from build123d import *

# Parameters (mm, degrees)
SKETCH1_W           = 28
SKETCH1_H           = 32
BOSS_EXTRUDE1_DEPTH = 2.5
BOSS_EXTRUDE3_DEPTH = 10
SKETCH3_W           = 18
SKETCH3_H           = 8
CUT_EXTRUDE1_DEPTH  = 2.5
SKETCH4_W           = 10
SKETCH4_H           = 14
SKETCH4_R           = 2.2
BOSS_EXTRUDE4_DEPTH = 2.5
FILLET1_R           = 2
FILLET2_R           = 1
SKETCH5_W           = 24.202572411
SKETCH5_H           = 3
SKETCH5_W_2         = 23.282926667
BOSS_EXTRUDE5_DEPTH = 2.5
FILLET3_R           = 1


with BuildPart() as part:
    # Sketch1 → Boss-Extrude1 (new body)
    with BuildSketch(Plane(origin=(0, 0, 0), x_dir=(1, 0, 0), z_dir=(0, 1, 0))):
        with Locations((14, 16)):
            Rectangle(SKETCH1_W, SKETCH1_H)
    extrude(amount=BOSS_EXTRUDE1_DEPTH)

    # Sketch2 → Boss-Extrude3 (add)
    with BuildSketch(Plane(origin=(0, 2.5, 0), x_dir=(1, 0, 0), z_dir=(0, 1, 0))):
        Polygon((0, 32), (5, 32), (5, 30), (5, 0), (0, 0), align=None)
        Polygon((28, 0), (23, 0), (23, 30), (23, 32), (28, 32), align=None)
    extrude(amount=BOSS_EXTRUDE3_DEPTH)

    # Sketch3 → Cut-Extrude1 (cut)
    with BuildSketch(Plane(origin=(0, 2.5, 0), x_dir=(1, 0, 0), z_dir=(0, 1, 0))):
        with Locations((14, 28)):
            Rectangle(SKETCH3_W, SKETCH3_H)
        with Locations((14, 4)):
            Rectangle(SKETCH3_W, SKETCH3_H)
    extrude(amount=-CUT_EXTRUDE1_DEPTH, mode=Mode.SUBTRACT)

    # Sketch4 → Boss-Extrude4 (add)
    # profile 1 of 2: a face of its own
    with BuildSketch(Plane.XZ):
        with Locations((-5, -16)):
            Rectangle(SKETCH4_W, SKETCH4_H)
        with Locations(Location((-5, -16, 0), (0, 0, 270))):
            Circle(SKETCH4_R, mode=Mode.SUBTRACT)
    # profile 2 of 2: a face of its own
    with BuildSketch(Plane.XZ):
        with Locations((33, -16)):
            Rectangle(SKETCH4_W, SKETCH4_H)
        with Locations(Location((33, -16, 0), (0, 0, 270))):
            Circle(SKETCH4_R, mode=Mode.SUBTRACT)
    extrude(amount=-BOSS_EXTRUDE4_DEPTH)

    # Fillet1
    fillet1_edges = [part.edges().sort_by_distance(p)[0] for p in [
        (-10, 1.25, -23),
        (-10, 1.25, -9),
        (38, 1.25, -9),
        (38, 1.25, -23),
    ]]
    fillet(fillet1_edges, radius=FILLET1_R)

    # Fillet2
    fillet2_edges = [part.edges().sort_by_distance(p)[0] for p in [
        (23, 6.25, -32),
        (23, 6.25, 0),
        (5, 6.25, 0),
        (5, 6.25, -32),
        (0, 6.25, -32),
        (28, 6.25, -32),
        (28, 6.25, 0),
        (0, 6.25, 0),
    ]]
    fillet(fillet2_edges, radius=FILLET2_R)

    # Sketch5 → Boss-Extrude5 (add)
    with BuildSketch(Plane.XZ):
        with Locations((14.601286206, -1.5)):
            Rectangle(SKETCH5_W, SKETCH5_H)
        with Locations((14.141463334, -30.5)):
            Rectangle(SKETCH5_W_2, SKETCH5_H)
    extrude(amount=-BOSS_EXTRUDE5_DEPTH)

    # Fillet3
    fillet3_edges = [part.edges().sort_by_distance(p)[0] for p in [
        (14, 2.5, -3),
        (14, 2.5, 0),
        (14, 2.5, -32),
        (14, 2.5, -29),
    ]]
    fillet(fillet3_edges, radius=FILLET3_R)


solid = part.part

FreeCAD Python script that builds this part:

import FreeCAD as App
import Part
import Sketcher


def edges_at(feature, points):
    """Names of the edges that pass closest to the given points."""
    edges = feature.Shape.Edges
    near = lambda p: min(range(len(edges)), key=lambda i: edges[i].distToShape(Part.Vertex(*p))[0])
    return sorted({f"Edge{near(p) + 1}" for p in points})

doc = App.newDocument("Part")
params = doc.addObject("Spreadsheet::Sheet", "Params")
for row, (alias, value) in enumerate([
    ("sketch1_width", "28 mm"),
    ("sketch1_height", "32 mm"),
    ("pad1_length", "2.5 mm"),
    ("sketch2_width", "5 mm"),
    ("sketch2_height", "32 mm"),
    ("pad2_length", "10 mm"),
    ("sketch3_width", "18 mm"),
    ("sketch3_height", "8 mm"),
    ("pocket1_length", "2.5 mm"),
    ("sketch4_diameter", "4.4 mm"),
    ("sketch4_width", "10 mm"),
    ("sketch4_height", "14 mm"),
    ("pad3_length", "2.5 mm"),
    ("fillet_radius", "2 mm"),
    ("fillet2_radius", "1 mm"),
    ("sketch5_height", "3 mm"),
    ("pad4_length", "2.5 mm"),
    ("fillet3_radius", "1 mm"),
], start=1):
    params.set(f"A{row}", alias)
    params.set(f"B{row}", "=" + value)
    params.setAlias(f"B{row}", alias)

body = doc.addObject("PartDesign::Body", "Body")

sketch1 = body.newObject("Sketcher::SketchObject", "Sketch")
sketch1.AttachmentSupport = (doc.getObject("XZ_Plane"), [""])
sketch1.MapMode = "FlatFace"
sketch1.addGeometry([
    Part.LineSegment(App.Vector(0, -32, 0), App.Vector(0, 0, 0)),
    Part.LineSegment(App.Vector(0, 0, 0), App.Vector(28, 0, 0)),
    Part.LineSegment(App.Vector(28, 0, 0), App.Vector(28, -32, 0)),
    Part.LineSegment(App.Vector(28, -32, 0), App.Vector(0, -32, 0)),
], False)
sketch1.addConstraint([
    Sketcher.Constraint("Coincident", 0, 2, 1, 1),
    Sketcher.Constraint("Coincident", 1, 2, 2, 1),
    Sketcher.Constraint("Coincident", 2, 2, 3, 1),
    Sketcher.Constraint("Coincident", 3, 2, 0, 1),
    Sketcher.Constraint("Vertical", 0),
    Sketcher.Constraint("Horizontal", 1),
    Sketcher.Constraint("Vertical", 2),
    Sketcher.Constraint("Horizontal", 3),
    Sketcher.Constraint("Coincident", 0, 2, -1, 1),
    Sketcher.Constraint("DistanceX", 1, 1, 1, 2, 28.0),
    Sketcher.Constraint("DistanceY", 0, 1, 0, 2, 32.0),
])
sketch1.setExpression("Constraints[9]", "Params.sketch1_width")
sketch1.setExpression("Constraints[10]", "Params.sketch1_height")
pad1 = body.newObject("PartDesign::Pad", "Pad")
pad1.Profile = sketch1
pad1.setExpression("Length", "Params.pad1_length")
pad1.Reversed = True

sketch2 = body.newObject("Sketcher::SketchObject", "Sketch001")
sketch2.AttachmentSupport = (doc.getObject("XZ_Plane"), [""])
sketch2.MapMode = "FlatFace"
sketch2.AttachmentOffset = App.Placement(App.Vector(0, 0, -2.5), App.Rotation())
sketch2.addGeometry([
    Part.LineSegment(App.Vector(5, -32, 0), App.Vector(0, -32, 0)),
    Part.LineSegment(App.Vector(0, -32, 0), App.Vector(0, 0, 0)),
    Part.LineSegment(App.Vector(0, 0, 0), App.Vector(5, 0, 0)),
    Part.LineSegment(App.Vector(5, 0, 0), App.Vector(5, -32, 0)),
    Part.LineSegment(App.Vector(23, 0, 0), App.Vector(28, 0, 0)),
    Part.LineSegment(App.Vector(28, 0, 0), App.Vector(28, -32, 0)),
    Part.LineSegment(App.Vector(28, -32, 0), App.Vector(23, -32, 0)),
    Part.LineSegment(App.Vector(23, -32, 0), App.Vector(23, 0, 0)),
], False)
sketch2.addConstraint([
    Sketcher.Constraint("Coincident", 0, 2, 1, 1),
    Sketcher.Constraint("Coincident", 1, 2, 2, 1),
    Sketcher.Constraint("Coincident", 2, 2, 3, 1),
    Sketcher.Constraint("Coincident", 3, 2, 0, 1),
    Sketcher.Constraint("Coincident", 4, 2, 5, 1),
    Sketcher.Constraint("Coincident", 5, 2, 6, 1),
    Sketcher.Constraint("Coincident", 6, 2, 7, 1),
    Sketcher.Constraint("Coincident", 7, 2, 4, 1),
    Sketcher.Constraint("Horizontal", 0),
    Sketcher.Constraint("Vertical", 1),
    Sketcher.Constraint("Horizontal", 2),
    Sketcher.Constraint("Vertical", 3),
    Sketcher.Constraint("Horizontal", 4),
    Sketcher.Constraint("Vertical", 5),
    Sketcher.Constraint("Horizontal", 6),
    Sketcher.Constraint("Vertical", 7),
    Sketcher.Constraint("Coincident", 1, 2, -1, 1),
    Sketcher.Constraint("PointOnObject", 4, 2, -1),
    Sketcher.Constraint("Horizontal", 3, 2, 5, 2),
    Sketcher.Constraint("Equal", 2, 4),
    Sketcher.Constraint("DistanceX", 0, 2, 0, 1, 5.0),
    Sketcher.Constraint("DistanceY", 1, 1, 1, 2, 32.0),
    Sketcher.Constraint("DistanceX", -1, 1, 4, 2, 28.0),
])
sketch2.setExpression("Constraints[20]", "Params.sketch2_width")
sketch2.setExpression("Constraints[21]", "Params.sketch2_height")
pad2 = body.newObject("PartDesign::Pad", "Pad001")
pad2.Profile = sketch2
pad2.setExpression("Length", "Params.pad2_length")
pad2.Reversed = True

sketch3 = body.newObject("Sketcher::SketchObject", "Sketch002")
sketch3.AttachmentSupport = (doc.getObject("XZ_Plane"), [""])
sketch3.MapMode = "FlatFace"
sketch3.AttachmentOffset = App.Placement(App.Vector(0, 0, -2.5), App.Rotation())
sketch3.addGeometry([
    Part.LineSegment(App.Vector(5, -32, 0), App.Vector(5, -24, 0)),
    Part.LineSegment(App.Vector(5, -24, 0), App.Vector(23, -24, 0)),
    Part.LineSegment(App.Vector(23, -24, 0), App.Vector(23, -32, 0)),
    Part.LineSegment(App.Vector(23, -32, 0), App.Vector(5, -32, 0)),
    Part.LineSegment(App.Vector(5, -8, 0), App.Vector(5, 0, 0)),
    Part.LineSegment(App.Vector(5, 0, 0), App.Vector(23, 0, 0)),
    Part.LineSegment(App.Vector(23, 0, 0), App.Vector(23, -8, 0)),
    Part.LineSegment(App.Vector(23, -8, 0), App.Vector(5, -8, 0)),
], False)
sketch3.addConstraint([
    Sketcher.Constraint("Coincident", 0, 2, 1, 1),
    Sketcher.Constraint("Coincident", 1, 2, 2, 1),
    Sketcher.Constraint("Coincident", 2, 2, 3, 1),
    Sketcher.Constraint("Coincident", 3, 2, 0, 1),
    Sketcher.Constraint("Coincident", 4, 2, 5, 1),
    Sketcher.Constraint("Coincident", 5, 2, 6, 1),
    Sketcher.Constraint("Coincident", 6, 2, 7, 1),
    Sketcher.Constraint("Coincident", 7, 2, 4, 1),
    Sketcher.Constraint("Vertical", 0),
    Sketcher.Constraint("Horizontal", 1),
    Sketcher.Constraint("Vertical", 2),
    Sketcher.Constraint("Horizontal", 3),
    Sketcher.Constraint("Vertical", 4),
    Sketcher.Constraint("Horizontal", 5),
    Sketcher.Constraint("Vertical", 6),
    Sketcher.Constraint("Horizontal", 7),
    Sketcher.Constraint("PointOnObject", 4, 2, -1),
    Sketcher.Constraint("Vertical", 3, 2, 4, 2),
    Sketcher.Constraint("Vertical", 2, 2, 5, 2),
    Sketcher.Constraint("Equal", 2, 4),
    Sketcher.Constraint("DistanceX", 1, 1, 1, 2, 18.0),
    Sketcher.Constraint("DistanceY", 0, 1, 0, 2, 8.0),
    Sketcher.Constraint("DistanceX", -1, 1, 0, 2, 5.0),
    Sketcher.Constraint("DistanceY", 0, 2, -1, 1, 24.0),
])
sketch3.setExpression("Constraints[20]", "Params.sketch3_width")
sketch3.setExpression("Constraints[21]", "Params.sketch3_height")
pocket1 = body.newObject("PartDesign::Pocket", "Pocket")
pocket1.Profile = sketch3
pocket1.setExpression("Length", "Params.pocket1_length")
pocket1.Reversed = True

sketch4 = body.newObject("Sketcher::SketchObject", "Sketch003")
sketch4.AttachmentSupport = (doc.getObject("XZ_Plane"), [""])
sketch4.MapMode = "FlatFace"
sketch4.addGeometry([
    Part.LineSegment(App.Vector(-10, -9, 0), App.Vector(-10, -23, 0)),
    Part.LineSegment(App.Vector(-10, -23, 0), App.Vector(0, -23, 0)),
    Part.LineSegment(App.Vector(0, -23, 0), App.Vector(0, -9, 0)),
    Part.LineSegment(App.Vector(0, -9, 0), App.Vector(-10, -9, 0)),
    Part.Circle(App.Vector(-5, -16, 0), App.Vector(0, 0, 1), 2.2),
    Part.LineSegment(App.Vector(28, -9, 0), App.Vector(28, -23, 0)),
    Part.LineSegment(App.Vector(28, -23, 0), App.Vector(38, -23, 0)),
    Part.LineSegment(App.Vector(38, -23, 0), App.Vector(38, -9, 0)),
    Part.LineSegment(App.Vector(38, -9, 0), App.Vector(28, -9, 0)),
    Part.Circle(App.Vector(33, -16, 0), App.Vector(0, 0, 1), 2.2),
], False)
sketch4.addConstraint([
    Sketcher.Constraint("Coincident", 0, 2, 1, 1),
    Sketcher.Constraint("Coincident", 1, 2, 2, 1),
    Sketcher.Constraint("Coincident", 2, 2, 3, 1),
    Sketcher.Constraint("Coincident", 3, 2, 0, 1),
    Sketcher.Constraint("Coincident", 5, 2, 6, 1),
    Sketcher.Constraint("Coincident", 6, 2, 7, 1),
    Sketcher.Constraint("Coincident", 7, 2, 8, 1),
    Sketcher.Constraint("Coincident", 8, 2, 5, 1),
    Sketcher.Constraint("Vertical", 0),
    Sketcher.Constraint("Horizontal", 1),
    Sketcher.Constraint("Vertical", 2),
    Sketcher.Constraint("Horizontal", 3),
    Sketcher.Constraint("Vertical", 5),
    Sketcher.Constraint("Horizontal", 6),
    Sketcher.Constraint("Vertical", 7),
    Sketcher.Constraint("Horizontal", 8),
    Sketcher.Constraint("Equal", 4, 9),
    Sketcher.Constraint("PointOnObject", 1, 2, -2),
    Sketcher.Constraint("Horizontal", 4, 3, 9, 3),
    Sketcher.Constraint("Horizontal", 1, 2, 5, 2),
    Sketcher.Constraint("Horizontal", 3, 2, 7, 2),
    Sketcher.Constraint("Equal", 3, 6),
    Sketcher.Constraint("Diameter", 4, 4.4),
    Sketcher.Constraint("DistanceX", 1, 1, 1, 2, 10.0),
    Sketcher.Constraint("DistanceY", 0, 2, 0, 1, 14.0),
    Sketcher.Constraint("DistanceX", 4, 3, -1, 1, 5.0),
    Sketcher.Constraint("DistanceY", 4, 3, -1, 1, 16.0),
    Sketcher.Constraint("DistanceX", -1, 1, 9, 3, 33.0),
    Sketcher.Constraint("DistanceY", 0, 2, -1, 1, 23.0),
    Sketcher.Constraint("DistanceX", -1, 1, 5, 2, 28.0),
])
sketch4.setExpression("Constraints[22]", "Params.sketch4_diameter")
sketch4.setExpression("Constraints[23]", "Params.sketch4_width")
sketch4.setExpression("Constraints[24]", "Params.sketch4_height")
pad3 = body.newObject("PartDesign::Pad", "Pad002")
pad3.Profile = sketch4
pad3.setExpression("Length", "Params.pad3_length")
pad3.Reversed = True
doc.recompute()

fillet = body.newObject("PartDesign::Fillet", "Fillet")
fillet.Base = (pad3, edges_at(pad3, [
    (-10, 1.25, -23),
    (-10, 1.25, -9),
    (38, 1.25, -9),
    (38, 1.25, -23),
]))
fillet.setExpression("Radius", "Params.fillet_radius")
doc.recompute()

fillet2 = body.newObject("PartDesign::Fillet", "Fillet001")
fillet2.Base = (fillet, edges_at(fillet, [
    (23, 6.25, -32),
    (23, 6.25, 0),
    (5, 6.25, 0),
    (5, 6.25, -32),
    (0, 6.25, -32),
    (28, 6.25, -32),
    (28, 6.25, 0),
    (0, 6.25, 0),
]))
fillet2.setExpression("Radius", "Params.fillet2_radius")

sketch5 = body.newObject("Sketcher::SketchObject", "Sketch004")
sketch5.AttachmentSupport = (doc.getObject("XZ_Plane"), [""])
sketch5.MapMode = "FlatFace"
sketch5.addGeometry([
    Part.LineSegment(App.Vector(2.5, 0, 0), App.Vector(2.5, -3, 0)),
    Part.LineSegment(App.Vector(2.5, -3, 0), App.Vector(26.7, -3, 0)),
    Part.LineSegment(App.Vector(26.7, -3, 0), App.Vector(26.7, 0, 0)),
    Part.LineSegment(App.Vector(26.7, 0, 0), App.Vector(2.5, 0, 0)),
    Part.LineSegment(App.Vector(2.5, -29, 0), App.Vector(2.5, -32, 0)),
    Part.LineSegment(App.Vector(2.5, -32, 0), App.Vector(25.8, -32, 0)),
    Part.LineSegment(App.Vector(25.8, -32, 0), App.Vector(25.8, -29, 0)),
    Part.LineSegment(App.Vector(25.8, -29, 0), App.Vector(2.5, -29, 0)),
], False)
sketch5.addConstraint([
    Sketcher.Constraint("Coincident", 0, 2, 1, 1),
    Sketcher.Constraint("Coincident", 1, 2, 2, 1),
    Sketcher.Constraint("Coincident", 2, 2, 3, 1),
    Sketcher.Constraint("Coincident", 3, 2, 0, 1),
    Sketcher.Constraint("Coincident", 4, 2, 5, 1),
    Sketcher.Constraint("Coincident", 5, 2, 6, 1),
    Sketcher.Constraint("Coincident", 6, 2, 7, 1),
    Sketcher.Constraint("Coincident", 7, 2, 4, 1),
    Sketcher.Constraint("Vertical", 0),
    Sketcher.Constraint("Horizontal", 1),
    Sketcher.Constraint("Vertical", 2),
    Sketcher.Constraint("Horizontal", 3),
    Sketcher.Constraint("Vertical", 4),
    Sketcher.Constraint("Horizontal", 5),
    Sketcher.Constraint("Vertical", 6),
    Sketcher.Constraint("Horizontal", 7),
    Sketcher.Constraint("PointOnObject", 2, 2, -1),
    Sketcher.Constraint("Vertical", 3, 2, 4, 2),
    Sketcher.Constraint("Equal", 2, 4),
    Sketcher.Constraint("DistanceY", 0, 2, 0, 1, 3.0),
    Sketcher.Constraint("DistanceY", 4, 2, -1, 1, 32.0),
    Sketcher.Constraint("DistanceX", -1, 1, 0, 2, 2.5),
    Sketcher.Constraint("DistanceX", 1, 1, 1, 2, 24.202572),
    Sketcher.Constraint("DistanceX", 5, 1, 5, 2, 23.282927),
])
sketch5.setExpression("Constraints[19]", "Params.sketch5_height")
pad4 = body.newObject("PartDesign::Pad", "Pad003")
pad4.Profile = sketch5
pad4.setExpression("Length", "Params.pad4_length")
pad4.Reversed = True
doc.recompute()

fillet3 = body.newObject("PartDesign::Fillet", "Fillet002")
fillet3.Base = (pad4, edges_at(pad4, [
    (14, 2.5, -3),
    (14, 2.5, 0),
    (14, 2.5, -32),
    (14, 2.5, -29),
]))
fillet3.setExpression("Radius", "Params.fillet3_radius")

doc.recompute()
